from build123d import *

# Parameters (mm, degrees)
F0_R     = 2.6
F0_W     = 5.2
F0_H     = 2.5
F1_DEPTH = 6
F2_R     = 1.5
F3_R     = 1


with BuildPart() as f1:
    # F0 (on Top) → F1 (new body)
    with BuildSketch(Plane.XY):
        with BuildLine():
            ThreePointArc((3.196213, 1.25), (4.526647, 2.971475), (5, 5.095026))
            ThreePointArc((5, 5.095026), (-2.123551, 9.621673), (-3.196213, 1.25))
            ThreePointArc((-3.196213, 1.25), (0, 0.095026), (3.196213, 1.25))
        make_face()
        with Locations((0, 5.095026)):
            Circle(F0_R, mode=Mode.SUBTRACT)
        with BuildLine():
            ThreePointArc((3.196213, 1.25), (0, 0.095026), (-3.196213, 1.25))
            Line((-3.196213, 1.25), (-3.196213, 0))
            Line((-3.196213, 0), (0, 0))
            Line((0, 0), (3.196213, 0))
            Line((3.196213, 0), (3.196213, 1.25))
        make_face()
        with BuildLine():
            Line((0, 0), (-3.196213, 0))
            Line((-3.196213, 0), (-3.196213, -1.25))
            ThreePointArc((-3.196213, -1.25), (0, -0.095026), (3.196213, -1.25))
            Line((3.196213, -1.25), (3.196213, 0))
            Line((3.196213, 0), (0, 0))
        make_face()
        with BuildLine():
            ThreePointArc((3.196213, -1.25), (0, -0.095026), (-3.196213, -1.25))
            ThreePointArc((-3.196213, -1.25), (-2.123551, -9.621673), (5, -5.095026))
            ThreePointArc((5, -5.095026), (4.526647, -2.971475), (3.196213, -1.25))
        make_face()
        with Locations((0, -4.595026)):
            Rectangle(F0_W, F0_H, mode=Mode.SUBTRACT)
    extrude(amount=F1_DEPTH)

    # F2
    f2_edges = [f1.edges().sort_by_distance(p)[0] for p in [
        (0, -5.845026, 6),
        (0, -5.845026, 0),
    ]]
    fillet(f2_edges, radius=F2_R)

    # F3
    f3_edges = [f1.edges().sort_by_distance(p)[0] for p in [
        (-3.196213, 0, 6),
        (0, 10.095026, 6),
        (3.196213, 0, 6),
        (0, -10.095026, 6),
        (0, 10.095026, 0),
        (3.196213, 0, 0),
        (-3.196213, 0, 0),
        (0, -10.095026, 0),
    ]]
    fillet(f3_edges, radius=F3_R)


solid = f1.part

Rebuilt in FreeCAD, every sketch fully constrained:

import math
import FreeCAD as App
import Part
import Sketcher
Q = App.Units.Quantity


def edges_at(feature, points):
    """Names of the edges that pass closest to the given points."""
    edges = feature.Shape.Edges
    near = lambda p: min(range(len(edges)), key=lambda i: edges[i].distToShape(Part.Vertex(*p))[0])
    return sorted({f"Edge{near(p) + 1}" for p in points})

doc = App.newDocument("Part")
body = doc.addObject("PartDesign::Body", "Body")

sketch1 = doc.addObject("Sketcher::SketchObject", "Sketch")
body.addObject(sketch1)
sketch1.AttachmentSupport = (doc.XY_Plane, [""])
sketch1.MapMode = "FlatFace"
sketch1.addGeometry([
    Part.ArcOfCircle(Part.Circle(App.Vector(0, 5.1, 0), App.Vector(0, 0, 1), 5), math.radians(-50), math.radians(0)),
    Part.ArcOfCircle(Part.Circle(App.Vector(0, 5.1, 0), App.Vector(0, 0, 1), 5), math.radians(0), math.radians(230)),
    Part.LineSegment(App.Vector(-3.2, 1.2, 0), App.Vector(-3.2, -1.2, 0)),
    Part.ArcOfCircle(Part.Circle(App.Vector(0, -5.1, 0), App.Vector(0, 0, 1), 5), math.radians(130), math.radians(360)),
    Part.ArcOfCircle(Part.Circle(App.Vector(0, -5.1, 0), App.Vector(0, 0, 1), 5), math.radians(0), math.radians(50)),
    Part.LineSegment(App.Vector(3.2, -1.2, 0), App.Vector(3.2, 1.2, 0)),
    Part.LineSegment(App.Vector(2.6, -5.8, 0), App.Vector(-2.6, -5.8, 0)),
    Part.LineSegment(App.Vector(-2.6, -5.8, 0), App.Vector(-2.6, -3.3, 0)),
    Part.LineSegment(App.Vector(-2.6, -3.3, 0), App.Vector(2.6, -3.3, 0)),
    Part.LineSegment(App.Vector(2.6, -3.3, 0), App.Vector(2.6, -5.8, 0)),
    Part.Circle(App.Vector(0, 5.1, 0), App.Vector(0, 0, 1), 2.6),
], False)
sketch1.addConstraint([
    Sketcher.Constraint("Tangent", 0, 2, 1, 1),
    Sketcher.Constraint("Coincident", 1, 2, 2, 1),
    Sketcher.Constraint("Coincident", 2, 2, 3, 1),
    Sketcher.Constraint("Tangent", 3, 2, 4, 1),
    Sketcher.Constraint("Coincident", 4, 2, 5, 1),
    Sketcher.Constraint("Coincident", 5, 2, 0, 1),
    Sketcher.Constraint("Coincident", 6, 2, 7, 1),
    Sketcher.Constraint("Coincident", 7, 2, 8, 1),
    Sketcher.Constraint("Coincident", 8, 2, 9, 1),
    Sketcher.Constraint("Coincident", 9, 2, 6, 1),
    Sketcher.Constraint("Vertical", 2),
    Sketcher.Constraint("Vertical", 5),
    Sketcher.Constraint("Horizontal", 6),
    Sketcher.Constraint("Vertical", 7),
    Sketcher.Constraint("Horizontal", 8),
    Sketcher.Constraint("Vertical", 9),
    Sketcher.Constraint("Coincident", 10, 3, 0, 3),
    Sketcher.Constraint("Equal", 0, 1),
    Sketcher.Constraint("Equal", 1, 3),
    Sketcher.Constraint("Equal", 3, 4),
    Sketcher.Constraint("Symmetric", 0, 3, 3, 3, -1, 1),
    Sketcher.Constraint("Symmetric", 2, 2, 4, 2, -2),
    Sketcher.Constraint("Horizontal", 10, 3, 0, 2),
    Sketcher.Constraint("Horizontal", 4, 3, 3, 2),
    Sketcher.Constraint("Equal", 5, 7),
    Sketcher.Constraint("Radius", 0, Q("4.999999 mm")),
    Sketcher.Constraint("Diameter", 10, Q("5.2 mm")),
    Sketcher.Constraint("DistanceX", 6, 2, 6, 1, Q("5.2 mm")),
    Sketcher.Constraint("DistanceY", 2, 2, 2, 1, Q("2.5 mm")),
    Sketcher.Constraint("DistanceX", 6, 2, -1, 1, Q("2.6 mm")),
    Sketcher.Constraint("DistanceY", 6, 2, 3, 3, Q("0.75 mm")),
    Sketcher.Constraint("DistanceY", 3, 3, 0, 3, Q("10.190051 mm")),
])
pad1 = doc.addObject("PartDesign::Pad", "Pad")
body.addObject(pad1)
pad1.Profile = sketch1
pad1.Length = 6
doc.recompute()

fillet = doc.addObject("PartDesign::Fillet", "Fillet")
body.addObject(fillet)
fillet.Base = (pad1, edges_at(pad1, [(0, -5.845, 6), (0, -5.845, 0)]))
fillet.Radius = 1.5
doc.recompute()

fillet2 = doc.addObject("PartDesign::Fillet", "Fillet001")
body.addObject(fillet2)
fillet2.Base = (fillet, edges_at(fillet, [
    (-3.196, 0, 6),
    (-2.124, 9.622, 6),
    (3.196, 0, 6),
    (-2.124, -9.622, 6),
    (-2.124, 9.622, 0),
    (3.196, 0, 0),
    (-3.196, 0, 0),
    (-2.124, -9.622, 0),
]))
fillet2.Radius = 1

doc.recompute()
